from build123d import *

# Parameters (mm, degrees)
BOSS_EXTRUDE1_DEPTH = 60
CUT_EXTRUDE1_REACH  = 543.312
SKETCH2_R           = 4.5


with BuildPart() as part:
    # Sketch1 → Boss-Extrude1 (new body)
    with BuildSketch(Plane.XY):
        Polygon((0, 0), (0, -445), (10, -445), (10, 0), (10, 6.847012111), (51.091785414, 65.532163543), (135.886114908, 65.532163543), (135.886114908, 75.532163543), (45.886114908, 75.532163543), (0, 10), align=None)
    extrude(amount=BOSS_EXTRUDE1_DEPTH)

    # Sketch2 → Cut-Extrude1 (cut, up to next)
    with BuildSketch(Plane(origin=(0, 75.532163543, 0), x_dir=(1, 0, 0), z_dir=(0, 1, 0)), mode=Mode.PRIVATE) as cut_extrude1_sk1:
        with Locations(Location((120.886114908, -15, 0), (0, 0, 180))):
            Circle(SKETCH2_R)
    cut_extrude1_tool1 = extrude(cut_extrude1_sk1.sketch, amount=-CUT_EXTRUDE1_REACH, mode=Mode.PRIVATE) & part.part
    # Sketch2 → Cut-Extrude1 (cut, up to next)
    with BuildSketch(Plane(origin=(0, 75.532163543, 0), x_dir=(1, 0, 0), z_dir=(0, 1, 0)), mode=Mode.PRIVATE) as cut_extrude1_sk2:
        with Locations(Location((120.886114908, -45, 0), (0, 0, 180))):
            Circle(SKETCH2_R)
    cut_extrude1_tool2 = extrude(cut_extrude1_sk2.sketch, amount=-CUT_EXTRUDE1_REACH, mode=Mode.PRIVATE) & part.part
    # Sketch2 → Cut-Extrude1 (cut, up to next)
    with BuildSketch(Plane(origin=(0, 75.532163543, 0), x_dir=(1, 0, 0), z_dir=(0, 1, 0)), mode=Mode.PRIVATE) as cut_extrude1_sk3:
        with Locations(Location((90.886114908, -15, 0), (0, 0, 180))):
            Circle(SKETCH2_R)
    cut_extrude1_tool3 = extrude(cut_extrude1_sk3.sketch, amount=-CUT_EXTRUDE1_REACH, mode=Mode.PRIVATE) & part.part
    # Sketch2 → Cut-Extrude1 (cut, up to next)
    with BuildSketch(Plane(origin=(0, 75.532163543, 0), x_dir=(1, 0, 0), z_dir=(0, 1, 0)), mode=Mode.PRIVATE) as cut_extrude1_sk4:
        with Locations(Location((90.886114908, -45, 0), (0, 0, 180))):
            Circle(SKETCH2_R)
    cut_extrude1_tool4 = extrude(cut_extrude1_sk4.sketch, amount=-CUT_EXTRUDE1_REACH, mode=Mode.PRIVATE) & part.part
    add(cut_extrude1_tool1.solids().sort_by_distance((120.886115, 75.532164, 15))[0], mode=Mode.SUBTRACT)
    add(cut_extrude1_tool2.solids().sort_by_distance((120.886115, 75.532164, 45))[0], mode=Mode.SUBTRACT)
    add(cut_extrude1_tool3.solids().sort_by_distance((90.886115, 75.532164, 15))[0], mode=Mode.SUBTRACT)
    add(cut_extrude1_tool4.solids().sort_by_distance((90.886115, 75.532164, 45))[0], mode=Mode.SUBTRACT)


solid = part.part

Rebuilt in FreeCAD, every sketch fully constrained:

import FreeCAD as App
import Part
import Sketcher

V = App.Vector
Q = App.Units.Quantity


def add_polygon(sketch, points):
    """Adds a closed chain of lines whose ends are joined by coincident constraints."""
    first, n = sketch.GeometryCount, len(points)
    for a, b in zip(points, points[1:] + points[:1]):
        sketch.addGeometry(Part.LineSegment(App.Vector(*a, 0), App.Vector(*b, 0)), False)
    for i in range(n):
        sketch.addConstraint(Sketcher.Constraint("Coincident", first + i, 2, first + (i + 1) % n, 1))

doc = App.newDocument("Part")
params = doc.addObject("Spreadsheet::Sheet", "Params")
for row, (alias, value) in enumerate([
    ("sketch1_width", "10 mm"),
    ("sketch1_width2", "90 mm"),
    ("sketch1_height", "455 mm"),
    ("sketch1_length", "80 mm"),
    ("pad1_length", "60 mm"),
    ("sketch2_diameter", "9 mm"),
    ("sketch3_diameter", "9 mm"),
    ("sketch4_diameter", "9 mm"),
    ("sketch5_diameter", "9 mm"),
], start=1):
    params.set(f"A{row}", alias)
    params.set(f"B{row}", "=" + value)
    params.setAlias(f"B{row}", alias)

body = doc.addObject("PartDesign::Body", "Body")

# Sketch on XY plane
sketch1 = body.newObject("Sketcher::SketchObject", "Sketch")
sketch1.AttachmentSupport = (doc.getObject("XY_Plane"), [""])
sketch1.MapMode = "FlatFace"
add_polygon(sketch1, [(0, -445), (10, -445), (10, 6.847012), (51.091785, 65.532164), (135.886115, 65.532164), (135.886115, 75.532164), (45.886115, 75.532164), (0, 10)])  # lines 0-7
sketch1.addConstraint(Sketcher.Constraint("Horizontal", 0))
sketch1.addConstraint(Sketcher.Constraint("Vertical", 1))
sketch1.addConstraint(Sketcher.Constraint("Horizontal", 3))
sketch1.addConstraint(Sketcher.Constraint("Vertical", 4))
sketch1.addConstraint(Sketcher.Constraint("Horizontal", 5))
sketch1.addConstraint(Sketcher.Constraint("Vertical", 7))
sketch1.addConstraint(Sketcher.Constraint("PointOnObject", 6, 2, -2))
sketch1.addConstraint(Sketcher.Constraint("Parallel", 2, 6))
sketch1.addConstraint(Sketcher.Constraint("Equal", 0, 4))
sketch1.addConstraint(Sketcher.Constraint("DistanceX", 0, 1, 0, 2, Q("10 mm")))
sketch1.addConstraint(Sketcher.Constraint("DistanceX", 5, 2, 5, 1, Q("90 mm")))
sketch1.addConstraint(Sketcher.Constraint("DistanceY", 7, 2, 7, 1, Q("455 mm")))
sketch1.addConstraint(Sketcher.Constraint("Angle", 2, Q("55 deg")))
sketch1.addConstraint(Sketcher.Constraint("Distance", 6, Q("80 mm")))
sketch1.addConstraint(Sketcher.Constraint("DistanceY", 0, 2, -1, 1, Q("445 mm")))
sketch1.addConstraint(Sketcher.Constraint("DistanceX", 3, 1, 3, 2, Q("84.794329 mm")))
sketch1.setExpression("Constraints[17]", "Params.sketch1_width")
sketch1.setExpression("Constraints[18]", "Params.sketch1_width2")
sketch1.setExpression("Constraints[19]", "Params.sketch1_height")
sketch1.setExpression("Constraints[21]", "Params.sketch1_length")
pad1 = body.newObject("PartDesign::Pad", "Pad")
pad1.Profile = sketch1
pad1.setExpression("Length", "Params.pad1_length")

# Sketch on XZ plane
sketch2 = body.newObject("Sketcher::SketchObject", "Sketch001")
sketch2.AttachmentSupport = (doc.getObject("XZ_Plane"), [""])
sketch2.MapMode = "FlatFace"
sketch2.AttachmentOffset = App.Placement(V(0, 0, -75.532164), App.Rotation())
sketch2.addGeometry(Part.Circle(V(120.886115, 15, 0), V(0, 0, 1), 4.5), False)
sketch2.addConstraint(Sketcher.Constraint("Diameter", 0, Q("9 mm")))
sketch2.addConstraint(Sketcher.Constraint("DistanceY", -1, 1, 0, 3, Q("15 mm")))
sketch2.addConstraint(Sketcher.Constraint("DistanceX", -1, 1, 0, 3, Q("120.886115 mm")))
sketch2.setExpression("Constraints[0]", "Params.sketch2_diameter")
pocket1 = body.newObject("PartDesign::Pocket", "Pocket")
pocket1.Profile = sketch2
pocket1.Type = "UpToFirst"
pocket1.Reversed = True

# Sketch on XZ plane
sketch3 = body.newObject("Sketcher::SketchObject", "Sketch002")
sketch3.AttachmentSupport = (doc.getObject("XZ_Plane"), [""])
sketch3.MapMode = "FlatFace"
sketch3.AttachmentOffset = App.Placement(V(0, 0, -75.532164), App.Rotation())
sketch3.addGeometry(Part.Circle(V(120.886115, 45, 0), V(0, 0, 1), 4.5), False)
sketch3.addConstraint(Sketcher.Constraint("Diameter", 0, Q("9 mm")))
sketch3.addConstraint(Sketcher.Constraint("DistanceY", -1, 1, 0, 3, Q("45 mm")))
sketch3.addConstraint(Sketcher.Constraint("DistanceX", -1, 1, 0, 3, Q("120.886115 mm")))
sketch3.setExpression("Constraints[0]", "Params.sketch3_diameter")
pocket2 = body.newObject("PartDesign::Pocket", "Pocket001")
pocket2.Profile = sketch3
pocket2.Type = "UpToFirst"
pocket2.Reversed = True

# Sketch on XZ plane
sketch4 = body.newObject("Sketcher::SketchObject", "Sketch003")
sketch4.AttachmentSupport = (doc.getObject("XZ_Plane"), [""])
sketch4.MapMode = "FlatFace"
sketch4.AttachmentOffset = App.Placement(V(0, 0, -75.532164), App.Rotation())
sketch4.addGeometry(Part.Circle(V(90.886115, 15, 0), V(0, 0, 1), 4.5), False)
sketch4.addConstraint(Sketcher.Constraint("Diameter", 0, Q("9 mm")))
sketch4.addConstraint(Sketcher.Constraint("DistanceY", -1, 1, 0, 3, Q("15 mm")))
sketch4.addConstraint(Sketcher.Constraint("DistanceX", -1, 1, 0, 3, Q("90.886115 mm")))
sketch4.setExpression("Constraints[0]", "Params.sketch4_diameter")
pocket3 = body.newObject("PartDesign::Pocket", "Pocket002")
pocket3.Profile = sketch4
pocket3.Type = "UpToFirst"
pocket3.Reversed = True

# Sketch on XZ plane
sketch5 = body.newObject("Sketcher::SketchObject", "Sketch004")
sketch5.AttachmentSupport = (doc.getObject("XZ_Plane"), [""])
sketch5.MapMode = "FlatFace"
sketch5.AttachmentOffset = App.Placement(V(0, 0, -75.532164), App.Rotation())
sketch5.addGeometry(Part.Circle(V(90.886115, 45, 0), V(0, 0, 1), 4.5), False)
sketch5.addConstraint(Sketcher.Constraint("Diameter", 0, Q("9 mm")))
sketch5.addConstraint(Sketcher.Constraint("DistanceY", -1, 1, 0, 3, Q("45 mm")))
sketch5.addConstraint(Sketcher.Constraint("DistanceX", -1, 1, 0, 3, Q("90.886115 mm")))
sketch5.setExpression("Constraints[0]", "Params.sketch5_diameter")
pocket4 = body.newObject("PartDesign::Pocket", "Pocket003")
pocket4.Profile = sketch5
pocket4.Type = "UpToFirst"
pocket4.Reversed = True

doc.recompute()
